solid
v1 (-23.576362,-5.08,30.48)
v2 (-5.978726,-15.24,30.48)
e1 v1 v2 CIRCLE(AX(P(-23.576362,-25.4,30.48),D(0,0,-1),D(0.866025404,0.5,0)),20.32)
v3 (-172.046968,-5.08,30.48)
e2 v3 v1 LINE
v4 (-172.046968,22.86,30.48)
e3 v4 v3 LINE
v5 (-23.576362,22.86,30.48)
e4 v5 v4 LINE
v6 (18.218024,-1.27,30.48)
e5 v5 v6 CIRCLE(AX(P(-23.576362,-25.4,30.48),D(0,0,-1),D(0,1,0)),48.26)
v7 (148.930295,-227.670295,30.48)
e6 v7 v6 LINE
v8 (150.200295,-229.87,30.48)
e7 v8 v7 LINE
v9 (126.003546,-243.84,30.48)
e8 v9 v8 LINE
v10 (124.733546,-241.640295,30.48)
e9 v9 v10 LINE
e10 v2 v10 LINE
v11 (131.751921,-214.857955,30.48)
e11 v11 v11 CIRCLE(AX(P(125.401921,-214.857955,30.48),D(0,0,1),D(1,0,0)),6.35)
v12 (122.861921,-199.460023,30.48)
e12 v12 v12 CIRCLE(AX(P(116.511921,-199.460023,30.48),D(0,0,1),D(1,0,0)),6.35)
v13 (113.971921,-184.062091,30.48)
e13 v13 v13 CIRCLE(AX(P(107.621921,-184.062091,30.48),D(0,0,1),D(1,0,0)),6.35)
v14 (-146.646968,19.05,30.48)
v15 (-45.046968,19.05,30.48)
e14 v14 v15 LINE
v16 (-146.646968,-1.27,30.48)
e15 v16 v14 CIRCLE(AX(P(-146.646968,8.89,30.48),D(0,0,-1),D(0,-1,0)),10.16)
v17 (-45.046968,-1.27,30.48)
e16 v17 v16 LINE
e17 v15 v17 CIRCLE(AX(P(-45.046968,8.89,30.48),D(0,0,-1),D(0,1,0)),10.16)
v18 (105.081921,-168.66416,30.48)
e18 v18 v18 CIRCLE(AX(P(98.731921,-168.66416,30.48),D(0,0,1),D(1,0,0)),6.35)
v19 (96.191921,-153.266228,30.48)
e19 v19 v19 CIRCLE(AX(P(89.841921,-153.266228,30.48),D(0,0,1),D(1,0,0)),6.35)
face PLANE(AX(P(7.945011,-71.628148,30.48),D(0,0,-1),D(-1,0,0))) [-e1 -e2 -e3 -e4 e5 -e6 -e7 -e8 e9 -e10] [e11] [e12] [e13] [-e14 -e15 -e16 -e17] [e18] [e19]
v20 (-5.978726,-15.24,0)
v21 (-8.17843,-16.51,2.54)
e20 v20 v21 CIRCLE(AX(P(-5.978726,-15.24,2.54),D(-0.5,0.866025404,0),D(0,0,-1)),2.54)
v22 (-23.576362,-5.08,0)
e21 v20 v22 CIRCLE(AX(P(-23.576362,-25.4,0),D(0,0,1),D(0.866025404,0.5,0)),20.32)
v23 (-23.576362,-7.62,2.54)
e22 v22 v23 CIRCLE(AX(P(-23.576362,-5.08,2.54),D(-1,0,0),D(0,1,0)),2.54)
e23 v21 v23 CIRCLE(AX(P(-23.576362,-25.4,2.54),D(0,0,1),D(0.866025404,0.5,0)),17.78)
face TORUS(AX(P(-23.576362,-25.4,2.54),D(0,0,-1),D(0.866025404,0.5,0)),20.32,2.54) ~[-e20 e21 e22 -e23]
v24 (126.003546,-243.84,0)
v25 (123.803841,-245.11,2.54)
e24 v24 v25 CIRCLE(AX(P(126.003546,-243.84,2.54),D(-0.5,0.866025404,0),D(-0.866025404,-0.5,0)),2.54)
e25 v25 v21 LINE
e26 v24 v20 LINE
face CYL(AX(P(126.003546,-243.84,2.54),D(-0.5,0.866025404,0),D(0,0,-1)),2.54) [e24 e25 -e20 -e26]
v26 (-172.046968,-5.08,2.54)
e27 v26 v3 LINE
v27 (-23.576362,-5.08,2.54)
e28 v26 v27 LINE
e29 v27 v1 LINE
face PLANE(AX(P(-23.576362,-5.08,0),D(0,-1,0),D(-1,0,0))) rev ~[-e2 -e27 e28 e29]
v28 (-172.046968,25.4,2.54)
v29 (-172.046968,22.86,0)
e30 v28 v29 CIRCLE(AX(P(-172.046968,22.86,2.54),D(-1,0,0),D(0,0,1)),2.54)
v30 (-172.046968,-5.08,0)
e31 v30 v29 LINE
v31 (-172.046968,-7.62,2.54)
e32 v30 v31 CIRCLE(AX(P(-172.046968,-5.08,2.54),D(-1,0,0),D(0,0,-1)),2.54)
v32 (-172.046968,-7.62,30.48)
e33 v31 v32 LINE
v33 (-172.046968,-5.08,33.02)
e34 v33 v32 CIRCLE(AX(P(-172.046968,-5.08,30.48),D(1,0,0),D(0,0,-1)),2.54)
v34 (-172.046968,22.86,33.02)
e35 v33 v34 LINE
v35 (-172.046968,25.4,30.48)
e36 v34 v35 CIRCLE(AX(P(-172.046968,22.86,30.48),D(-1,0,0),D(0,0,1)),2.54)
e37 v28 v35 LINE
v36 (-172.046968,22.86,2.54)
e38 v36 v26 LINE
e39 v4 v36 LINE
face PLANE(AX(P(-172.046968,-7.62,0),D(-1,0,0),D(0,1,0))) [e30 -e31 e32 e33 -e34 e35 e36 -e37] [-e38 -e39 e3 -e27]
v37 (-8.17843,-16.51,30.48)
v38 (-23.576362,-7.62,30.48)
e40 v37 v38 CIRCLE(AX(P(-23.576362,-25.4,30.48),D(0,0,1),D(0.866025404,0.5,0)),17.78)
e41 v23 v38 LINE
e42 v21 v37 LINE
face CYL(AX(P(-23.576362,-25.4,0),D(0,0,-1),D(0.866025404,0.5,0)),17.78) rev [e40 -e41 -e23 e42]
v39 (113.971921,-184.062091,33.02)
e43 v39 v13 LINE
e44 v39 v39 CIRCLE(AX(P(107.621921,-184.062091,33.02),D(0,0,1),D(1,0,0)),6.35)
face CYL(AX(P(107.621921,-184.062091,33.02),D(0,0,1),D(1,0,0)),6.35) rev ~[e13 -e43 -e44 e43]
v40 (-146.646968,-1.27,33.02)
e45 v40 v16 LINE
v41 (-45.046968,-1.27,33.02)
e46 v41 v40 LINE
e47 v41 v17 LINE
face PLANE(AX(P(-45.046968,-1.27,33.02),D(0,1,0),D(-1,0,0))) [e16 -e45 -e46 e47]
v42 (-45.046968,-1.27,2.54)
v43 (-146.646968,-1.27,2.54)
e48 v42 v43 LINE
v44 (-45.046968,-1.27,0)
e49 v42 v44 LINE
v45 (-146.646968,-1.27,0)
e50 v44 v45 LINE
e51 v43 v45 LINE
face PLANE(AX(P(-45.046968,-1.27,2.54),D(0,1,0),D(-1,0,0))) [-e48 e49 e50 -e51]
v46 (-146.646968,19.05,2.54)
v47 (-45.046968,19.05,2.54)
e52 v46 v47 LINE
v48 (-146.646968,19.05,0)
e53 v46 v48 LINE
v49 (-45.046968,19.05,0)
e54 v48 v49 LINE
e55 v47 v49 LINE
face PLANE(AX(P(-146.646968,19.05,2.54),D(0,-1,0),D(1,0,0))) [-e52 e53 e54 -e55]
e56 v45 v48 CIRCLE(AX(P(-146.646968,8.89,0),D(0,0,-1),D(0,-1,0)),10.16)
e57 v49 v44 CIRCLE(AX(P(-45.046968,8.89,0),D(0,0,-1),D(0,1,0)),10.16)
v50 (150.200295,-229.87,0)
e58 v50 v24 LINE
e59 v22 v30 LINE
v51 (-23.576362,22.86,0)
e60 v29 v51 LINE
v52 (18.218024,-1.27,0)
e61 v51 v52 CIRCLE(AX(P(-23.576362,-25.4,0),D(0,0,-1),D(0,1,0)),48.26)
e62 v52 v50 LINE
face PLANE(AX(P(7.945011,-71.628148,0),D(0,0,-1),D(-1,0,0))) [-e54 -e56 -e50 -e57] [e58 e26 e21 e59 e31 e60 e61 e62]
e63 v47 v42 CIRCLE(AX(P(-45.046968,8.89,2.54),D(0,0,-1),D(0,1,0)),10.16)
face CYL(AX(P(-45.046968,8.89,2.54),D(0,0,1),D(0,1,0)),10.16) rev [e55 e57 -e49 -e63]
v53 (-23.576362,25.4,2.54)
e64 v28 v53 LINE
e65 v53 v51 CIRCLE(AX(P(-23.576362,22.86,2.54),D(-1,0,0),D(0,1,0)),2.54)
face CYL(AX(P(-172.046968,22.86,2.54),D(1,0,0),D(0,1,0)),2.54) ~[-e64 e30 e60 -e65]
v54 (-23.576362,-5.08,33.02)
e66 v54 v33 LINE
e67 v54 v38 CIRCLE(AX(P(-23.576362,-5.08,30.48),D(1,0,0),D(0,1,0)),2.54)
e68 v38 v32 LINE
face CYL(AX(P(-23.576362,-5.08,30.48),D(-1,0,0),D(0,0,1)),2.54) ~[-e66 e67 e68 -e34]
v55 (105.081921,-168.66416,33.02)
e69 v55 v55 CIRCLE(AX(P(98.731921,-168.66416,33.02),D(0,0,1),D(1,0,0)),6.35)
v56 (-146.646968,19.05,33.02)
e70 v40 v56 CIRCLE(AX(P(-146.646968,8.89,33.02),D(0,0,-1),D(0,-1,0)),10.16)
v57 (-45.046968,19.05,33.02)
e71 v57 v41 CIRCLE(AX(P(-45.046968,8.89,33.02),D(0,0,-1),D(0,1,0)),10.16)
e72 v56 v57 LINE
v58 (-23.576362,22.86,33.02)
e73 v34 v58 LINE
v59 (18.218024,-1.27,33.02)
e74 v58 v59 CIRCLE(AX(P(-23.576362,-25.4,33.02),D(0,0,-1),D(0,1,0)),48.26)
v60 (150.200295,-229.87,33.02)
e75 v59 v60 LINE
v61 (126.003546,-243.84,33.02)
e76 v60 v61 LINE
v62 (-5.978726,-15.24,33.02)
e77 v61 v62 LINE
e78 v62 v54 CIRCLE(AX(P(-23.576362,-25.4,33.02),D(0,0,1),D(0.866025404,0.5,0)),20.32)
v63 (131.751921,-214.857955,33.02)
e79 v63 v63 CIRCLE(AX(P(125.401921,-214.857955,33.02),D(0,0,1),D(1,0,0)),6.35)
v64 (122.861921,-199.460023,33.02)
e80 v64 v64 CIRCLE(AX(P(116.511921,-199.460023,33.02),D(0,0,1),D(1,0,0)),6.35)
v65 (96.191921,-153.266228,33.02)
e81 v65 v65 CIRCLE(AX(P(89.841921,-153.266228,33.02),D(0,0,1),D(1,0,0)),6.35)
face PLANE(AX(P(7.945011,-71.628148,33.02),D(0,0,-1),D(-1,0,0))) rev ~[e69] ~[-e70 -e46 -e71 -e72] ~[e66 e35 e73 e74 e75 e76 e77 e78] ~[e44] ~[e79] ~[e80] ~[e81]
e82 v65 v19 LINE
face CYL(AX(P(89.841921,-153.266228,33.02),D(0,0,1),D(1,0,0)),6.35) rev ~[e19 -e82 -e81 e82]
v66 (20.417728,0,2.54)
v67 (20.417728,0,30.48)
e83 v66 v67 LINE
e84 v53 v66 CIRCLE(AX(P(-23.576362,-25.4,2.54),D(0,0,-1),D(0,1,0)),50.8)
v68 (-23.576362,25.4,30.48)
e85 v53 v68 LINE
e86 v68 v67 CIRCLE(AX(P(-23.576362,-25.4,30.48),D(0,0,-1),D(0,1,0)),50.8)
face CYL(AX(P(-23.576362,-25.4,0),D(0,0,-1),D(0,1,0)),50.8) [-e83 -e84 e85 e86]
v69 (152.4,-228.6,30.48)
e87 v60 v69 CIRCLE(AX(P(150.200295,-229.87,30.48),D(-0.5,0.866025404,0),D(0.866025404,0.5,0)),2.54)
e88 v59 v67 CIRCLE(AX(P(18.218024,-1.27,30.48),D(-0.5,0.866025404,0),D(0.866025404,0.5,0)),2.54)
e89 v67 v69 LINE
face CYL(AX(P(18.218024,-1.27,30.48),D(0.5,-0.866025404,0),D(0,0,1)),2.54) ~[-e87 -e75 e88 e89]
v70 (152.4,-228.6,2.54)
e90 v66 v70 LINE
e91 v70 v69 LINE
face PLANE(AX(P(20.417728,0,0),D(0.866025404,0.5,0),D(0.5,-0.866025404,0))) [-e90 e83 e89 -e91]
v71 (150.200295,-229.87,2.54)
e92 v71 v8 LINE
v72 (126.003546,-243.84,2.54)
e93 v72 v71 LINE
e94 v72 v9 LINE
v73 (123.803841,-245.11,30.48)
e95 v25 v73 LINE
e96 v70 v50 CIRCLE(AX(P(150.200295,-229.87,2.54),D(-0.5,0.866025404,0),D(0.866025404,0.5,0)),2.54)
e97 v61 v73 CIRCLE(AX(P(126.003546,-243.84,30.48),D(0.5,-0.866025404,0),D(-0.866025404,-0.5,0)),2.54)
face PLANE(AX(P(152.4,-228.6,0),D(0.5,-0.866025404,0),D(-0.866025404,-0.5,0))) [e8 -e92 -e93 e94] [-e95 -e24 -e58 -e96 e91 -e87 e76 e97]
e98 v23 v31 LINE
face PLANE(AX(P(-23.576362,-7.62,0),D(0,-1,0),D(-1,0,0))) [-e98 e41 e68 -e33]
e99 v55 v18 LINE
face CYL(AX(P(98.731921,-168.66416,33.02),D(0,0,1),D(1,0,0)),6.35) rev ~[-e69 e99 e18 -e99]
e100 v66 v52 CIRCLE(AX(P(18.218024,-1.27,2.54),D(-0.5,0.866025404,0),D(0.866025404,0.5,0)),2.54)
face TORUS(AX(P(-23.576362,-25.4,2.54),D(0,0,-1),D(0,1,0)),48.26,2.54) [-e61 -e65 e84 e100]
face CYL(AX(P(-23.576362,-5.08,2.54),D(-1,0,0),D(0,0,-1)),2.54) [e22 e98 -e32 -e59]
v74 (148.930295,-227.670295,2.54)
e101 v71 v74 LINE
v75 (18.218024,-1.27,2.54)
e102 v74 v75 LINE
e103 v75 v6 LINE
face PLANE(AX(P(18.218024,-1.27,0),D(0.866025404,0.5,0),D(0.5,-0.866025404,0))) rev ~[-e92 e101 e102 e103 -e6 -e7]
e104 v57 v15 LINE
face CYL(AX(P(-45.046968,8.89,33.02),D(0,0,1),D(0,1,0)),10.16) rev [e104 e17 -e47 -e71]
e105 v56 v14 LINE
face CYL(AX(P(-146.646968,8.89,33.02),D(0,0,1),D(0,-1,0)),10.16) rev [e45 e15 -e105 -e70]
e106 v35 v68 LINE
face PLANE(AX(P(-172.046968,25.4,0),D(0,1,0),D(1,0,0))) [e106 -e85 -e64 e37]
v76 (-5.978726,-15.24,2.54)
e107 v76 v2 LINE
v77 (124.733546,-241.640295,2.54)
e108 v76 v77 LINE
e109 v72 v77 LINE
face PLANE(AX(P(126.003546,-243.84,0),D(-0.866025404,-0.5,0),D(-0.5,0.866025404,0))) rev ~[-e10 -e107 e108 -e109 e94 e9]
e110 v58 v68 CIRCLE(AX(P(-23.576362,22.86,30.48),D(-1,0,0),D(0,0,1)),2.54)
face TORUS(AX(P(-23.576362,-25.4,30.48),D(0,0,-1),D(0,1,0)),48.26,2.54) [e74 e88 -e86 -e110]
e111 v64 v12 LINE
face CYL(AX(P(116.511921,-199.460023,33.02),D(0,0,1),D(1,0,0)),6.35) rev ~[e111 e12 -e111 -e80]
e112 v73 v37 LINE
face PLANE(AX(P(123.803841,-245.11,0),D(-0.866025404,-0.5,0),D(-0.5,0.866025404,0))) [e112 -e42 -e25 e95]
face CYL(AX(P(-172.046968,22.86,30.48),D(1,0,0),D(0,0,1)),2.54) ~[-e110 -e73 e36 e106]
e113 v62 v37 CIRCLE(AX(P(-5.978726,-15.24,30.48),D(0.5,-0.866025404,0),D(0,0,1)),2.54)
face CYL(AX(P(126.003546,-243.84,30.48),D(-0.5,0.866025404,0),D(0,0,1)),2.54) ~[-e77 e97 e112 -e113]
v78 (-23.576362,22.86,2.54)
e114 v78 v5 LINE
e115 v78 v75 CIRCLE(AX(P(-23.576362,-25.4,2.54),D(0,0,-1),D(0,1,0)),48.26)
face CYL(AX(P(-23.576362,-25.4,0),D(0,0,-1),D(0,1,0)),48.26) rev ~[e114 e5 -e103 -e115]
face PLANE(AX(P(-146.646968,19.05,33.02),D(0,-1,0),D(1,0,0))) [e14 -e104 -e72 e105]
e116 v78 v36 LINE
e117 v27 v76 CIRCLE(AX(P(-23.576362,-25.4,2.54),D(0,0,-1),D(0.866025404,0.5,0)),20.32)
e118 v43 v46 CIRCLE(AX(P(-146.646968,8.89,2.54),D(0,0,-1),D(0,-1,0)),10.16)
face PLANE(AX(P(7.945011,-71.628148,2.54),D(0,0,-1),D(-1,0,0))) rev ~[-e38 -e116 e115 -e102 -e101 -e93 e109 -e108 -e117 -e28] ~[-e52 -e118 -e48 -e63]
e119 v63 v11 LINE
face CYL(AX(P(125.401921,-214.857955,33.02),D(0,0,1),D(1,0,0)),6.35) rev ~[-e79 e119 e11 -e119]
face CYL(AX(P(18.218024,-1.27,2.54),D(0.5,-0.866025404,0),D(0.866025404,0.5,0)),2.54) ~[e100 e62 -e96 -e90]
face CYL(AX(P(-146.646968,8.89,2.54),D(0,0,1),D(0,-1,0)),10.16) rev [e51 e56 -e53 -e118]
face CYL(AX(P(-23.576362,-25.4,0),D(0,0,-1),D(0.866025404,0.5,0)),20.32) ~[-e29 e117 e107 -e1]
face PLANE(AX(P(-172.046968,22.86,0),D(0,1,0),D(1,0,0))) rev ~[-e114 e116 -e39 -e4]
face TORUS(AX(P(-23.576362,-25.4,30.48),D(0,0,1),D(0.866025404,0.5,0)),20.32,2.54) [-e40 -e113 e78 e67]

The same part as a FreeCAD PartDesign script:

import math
import FreeCAD as App
import Part
import Sketcher
Q = App.Units.Quantity


def edges_at(feature, points):
    """Names of the edges that pass closest to the given points."""
    edges = feature.Shape.Edges
    near = lambda p: min(range(len(edges)), key=lambda i: edges[i].distToShape(Part.Vertex(*p))[0])
    return sorted({f"Edge{near(p) + 1}" for p in points})


def faces_at(feature, points):
    """Names of the faces that lie closest to the given points."""
    faces = feature.Shape.Faces
    near = lambda p: min(range(len(faces)), key=lambda i: faces[i].distToShape(Part.Vertex(*p))[0])
    return sorted({f"Face{near(p) + 1}" for p in points})

doc = App.newDocument("Part")
body = doc.addObject("PartDesign::Body", "Body")

# Sketch on XY plane
sketch1 = body.newObject("Sketcher::SketchObject", "Sketch")
sketch1.AttachmentSupport = (doc.getObject("XY_Plane"), [""])
sketch1.MapMode = "FlatFace"
sketch1.addGeometry([
    Part.LineSegment(App.Vector(-23.576362, 25.4, 0), App.Vector(-172.046968, 25.4, 0)),  # 0
    Part.LineSegment(App.Vector(-172.046968, 25.4, 0), App.Vector(-172.046968, -7.62, 0)),  # 1
    Part.LineSegment(App.Vector(-172.046968, -7.62, 0), App.Vector(-23.576362, -7.62, 0)),  # 2
    Part.ArcOfCircle(Part.Circle(App.Vector(-23.576362, -25.4, 0), App.Vector(0, 0, 1), 17.78), math.radians(30), math.radians(90)),  # 3
    Part.LineSegment(App.Vector(-8.17843, -16.51, 0), App.Vector(123.803841, -245.11, 0)),  # 4
    Part.LineSegment(App.Vector(123.803841, -245.11, 0), App.Vector(152.4, -228.6, 0)),  # 5
    Part.LineSegment(App.Vector(152.4, -228.6, 0), App.Vector(20.417728, 0, 0)),  # 6
    Part.ArcOfCircle(Part.Circle(App.Vector(-23.576362, -25.4, 0), App.Vector(0, 0, 1), 50.8), math.radians(30), math.radians(90)),  # 7
], False)
sketch1.addConstraint([
    Sketcher.Constraint("Coincident", 0, 2, 1, 1),
    Sketcher.Constraint("Coincident", 1, 2, 2, 1),
    Sketcher.Constraint("Tangent", 2, 2, 3, 2),
    Sketcher.Constraint("Tangent", 3, 1, 4, 1),
    Sketcher.Constraint("Coincident", 4, 2, 5, 1),
    Sketcher.Constraint("Coincident", 5, 2, 6, 1),
    Sketcher.Constraint("Tangent", 6, 2, 7, 1),
    Sketcher.Constraint("Tangent", 7, 2, 0, 1),
    Sketcher.Constraint("Horizontal", 0),
    Sketcher.Constraint("Vertical", 1),
    Sketcher.Constraint("Horizontal", 2),
    Sketcher.Constraint("Coincident", 7, 3, 3, 3),
    Sketcher.Constraint("PointOnObject", 6, 2, -1),
    Sketcher.Constraint("Perpendicular", 4, 5),
    Sketcher.Constraint("Perpendicular", 5, 6),
    Sketcher.Constraint("Radius", 7, Q("2 in")),
    Sketcher.Constraint("Radius", 3, Q("0.7 in")),
    Sketcher.Constraint("DistanceY", 3, 3, -1, 1, Q("1 in")),
    Sketcher.Constraint("DistanceX", -1, 1, 5, 2, Q("6 in")),
    Sketcher.Constraint("DistanceY", 5, 2, -1, 1, Q("9 in")),
    Sketcher.Constraint("DistanceX", 0, 2, 0, 1, Q("148.470606 mm")),
])
pad1 = body.newObject("PartDesign::Pad", "Pad")
pad1.Profile = sketch1
pad1.Length = Q("1.3 in")
doc.recompute()

thickness = body.newObject("PartDesign::Thickness", "Thickness")
thickness.Base = (pad1, faces_at(pad1, [(-172.047, 8.89, 16.51)]))
thickness.Value = Q("0.1 in")
thickness.Reversed = True
thickness.Join = "Intersection"

# Sketch on an angled plane
sketch2 = body.newObject("Sketcher::SketchObject", "Sketch001")
sketch2.Placement = App.Placement(App.Vector(137.086704, -237.441136, 0), App.Rotation(App.Vector(0.866025404, 0.5, 0), App.Vector(0, 0, 1), App.Vector(0.5, -0.866025404, 0), "ZXY"))
sketch2.addGeometry([
    Part.LineSegment(App.Vector(-12.797728, 30.48, 0), App.Vector(-12.797728, 2.54, 0)),
    Part.LineSegment(App.Vector(-12.797728, 2.54, 0), App.Vector(15.142272, 2.54, 0)),
    Part.LineSegment(App.Vector(15.142272, 2.54, 0), App.Vector(15.142272, 30.48, 0)),
    Part.LineSegment(App.Vector(15.142272, 30.48, 0), App.Vector(-12.797728, 30.48, 0)),
], False)
sketch2.addConstraint([
    Sketcher.Constraint("Coincident", 0, 2, 1, 1),
    Sketcher.Constraint("Coincident", 1, 2, 2, 1),
    Sketcher.Constraint("Coincident", 2, 2, 3, 1),
    Sketcher.Constraint("Coincident", 3, 2, 0, 1),
    Sketcher.Constraint("Vertical", 0),
    Sketcher.Constraint("Horizontal", 1),
    Sketcher.Constraint("Vertical", 2),
    Sketcher.Constraint("Horizontal", 3),
    Sketcher.Constraint("Equal", 3, 0),
    Sketcher.Constraint("DistanceX", 1, 1, 1, 2, Q("1.1 in")),
    Sketcher.Constraint("DistanceY", -1, 1, 0, 2, Q("0.1 in")),
    Sketcher.Constraint("DistanceX", 0, 2, -1, 1, Q("12.797728 mm")),
])
pocket1 = body.newObject("PartDesign::Pocket", "Pocket")
pocket1.Profile = sketch2
pocket1.Type = "UpToFirst"

# Sketch on XY plane
sketch3 = body.newObject("Sketcher::SketchObject", "Sketch002")
sketch3.AttachmentSupport = (doc.getObject("XY_Plane"), [""])
sketch3.MapMode = "FlatFace"
sketch3.AttachmentOffset = App.Placement(App.Vector(0, 0, 1.3 * 25.4), App.Rotation())
sketch3.addGeometry([
    Part.LineSegment(App.Vector(-45.046968, 19.05, 0), App.Vector(-146.646968, 19.05, 0)),
    Part.ArcOfCircle(Part.Circle(App.Vector(-146.646968, 8.89, 0), App.Vector(0, 0, 1), 10.16), math.radians(90), math.radians(270)),
    Part.LineSegment(App.Vector(-146.646968, -1.27, 0), App.Vector(-45.046968, -1.27, 0)),
    Part.ArcOfCircle(Part.Circle(App.Vector(-45.046968, 8.89, 0), App.Vector(0, 0, 1), 10.16), math.radians(-90), math.radians(90)),
], False)
sketch3.addConstraint([
    Sketcher.Constraint("Tangent", 0, 2, 1, 1),
    Sketcher.Constraint("Tangent", 1, 2, 2, 1),
    Sketcher.Constraint("Tangent", 2, 2, 3, 1),
    Sketcher.Constraint("Tangent", 3, 2, 0, 1),
    Sketcher.Constraint("Horizontal", 0),
    Sketcher.Constraint("Horizontal", 2),
    Sketcher.Constraint("Radius", 1, Q("0.4 in")),
    Sketcher.Constraint("DistanceX", 0, 2, 0, 1, Q("4 in")),
    Sketcher.Constraint("DistanceY", -1, 1, 1, 3, Q("0.35 in")),
    Sketcher.Constraint("DistanceX", 1, 3, -1, 1, Q("146.646968 mm")),
])
pocket2 = body.newObject("PartDesign::Pocket", "Pocket001")
pocket2.Profile = sketch3
pocket2.Length = Q("0.1 in")

# Sketch on XY plane
sketch4 = body.newObject("Sketcher::SketchObject", "Sketch003")
sketch4.AttachmentSupport = (doc.getObject("XY_Plane"), [""])
sketch4.MapMode = "FlatFace"
sketch4.AttachmentOffset = App.Placement(App.Vector(0, 0, 0.1 * 25.4), App.Rotation())
sketch4.addGeometry([
    Part.ArcOfCircle(Part.Circle(App.Vector(-146.646968, 8.89, 0), App.Vector(0, 0, 1), 10.16), math.radians(90), math.radians(270)),
    Part.LineSegment(App.Vector(-146.646968, 19.05, 0), App.Vector(-45.046968, 19.05, 0)),
    Part.ArcOfCircle(Part.Circle(App.Vector(-45.046968, 8.89, 0), App.Vector(0, 0, 1), 10.16), math.radians(-90), math.radians(90)),
    Part.LineSegment(App.Vector(-45.046968, -1.27, 0), App.Vector(-146.646968, -1.27, 0)),
], False)
sketch4.addConstraint([
    Sketcher.Constraint("Tangent", 0, 1, 1, 1),
    Sketcher.Constraint("Tangent", 1, 2, 2, 2),
    Sketcher.Constraint("Tangent", 2, 1, 3, 1),
    Sketcher.Constraint("Tangent", 3, 2, 0, 2),
    Sketcher.Constraint("Horizontal", 1),
    Sketcher.Constraint("Horizontal", 3),
    Sketcher.Constraint("Radius", 0, Q("0.4 in")),
    Sketcher.Constraint("DistanceX", 1, 1, 1, 2, Q("4 in")),
    Sketcher.Constraint("DistanceY", -1, 1, 0, 3, Q("0.35 in")),
    Sketcher.Constraint("DistanceX", 0, 3, -1, 1, Q("146.646968 mm")),
])
pocket3 = body.newObject("PartDesign::Pocket", "Pocket002")
pocket3.Profile = sketch4
pocket3.Length = Q("0.1 in")

# Sketch on XY plane
sketch5 = body.newObject("Sketcher::SketchObject", "Sketch004")
sketch5.AttachmentSupport = (doc.getObject("XY_Plane"), [""])
sketch5.MapMode = "FlatFace"
sketch5.AttachmentOffset = App.Placement(App.Vector(0, 0, 1.3 * 25.4), App.Rotation())
sketch5.addGeometry(Part.Circle(App.Vector(125.401921, -214.857955, 0), App.Vector(0, 0, 1), 6.35), False)
sketch5.addConstraint([
    Sketcher.Constraint("Diameter", 0, Q("0.5 in")),
    Sketcher.Constraint("DistanceX", -1, 1, 0, 3, Q("125.401921 mm")),
    Sketcher.Constraint("DistanceY", 0, 3, -1, 1, Q("214.857955 mm")),
])
pocket4 = body.newObject("PartDesign::Pocket", "Pocket003")
pocket4.Profile = sketch5
pocket4.Type = "UpToFirst"

# Sketch on XY plane
sketch6 = body.newObject("Sketcher::SketchObject", "Sketch005")
sketch6.AttachmentSupport = (doc.getObject("XY_Plane"), [""])
sketch6.MapMode = "FlatFace"
sketch6.AttachmentOffset = App.Placement(App.Vector(0, 0, 1.3 * 25.4), App.Rotation())
sketch6.addGeometry(Part.Circle(App.Vector(116.511921, -199.460023, 0), App.Vector(0, 0, 1), 6.35), False)
sketch6.addConstraint([
    Sketcher.Constraint("Diameter", 0, Q("0.5 in")),
    Sketcher.Constraint("DistanceX", -1, 1, 0, 3, Q("116.511921 mm")),
    Sketcher.Constraint("DistanceY", 0, 3, -1, 1, Q("199.460023 mm")),
])
pocket5 = body.newObject("PartDesign::Pocket", "Pocket004")
pocket5.Profile = sketch6
pocket5.Type = "UpToFirst"

# Sketch on XY plane
sketch7 = body.newObject("Sketcher::SketchObject", "Sketch006")
sketch7.AttachmentSupport = (doc.getObject("XY_Plane"), [""])
sketch7.MapMode = "FlatFace"
sketch7.AttachmentOffset = App.Placement(App.Vector(0, 0, 1.3 * 25.4), App.Rotation())
sketch7.addGeometry(Part.Circle(App.Vector(107.621921, -184.062091, 0), App.Vector(0, 0, 1), 6.35), False)
sketch7.addConstraint([
    Sketcher.Constraint("Diameter", 0, Q("0.5 in")),
    Sketcher.Constraint("DistanceX", -1, 1, 0, 3, Q("107.621921 mm")),
    Sketcher.Constraint("DistanceY", 0, 3, -1, 1, Q("184.062091 mm")),
])
pocket6 = body.newObject("PartDesign::Pocket", "Pocket005")
pocket6.Profile = sketch7
pocket6.Type = "UpToFirst"

# Sketch on XY plane
sketch8 = body.newObject("Sketcher::SketchObject", "Sketch007")
sketch8.AttachmentSupport = (doc.getObject("XY_Plane"), [""])
sketch8.MapMode = "FlatFace"
sketch8.AttachmentOffset = App.Placement(App.Vector(0, 0, 1.3 * 25.4), App.Rotation())
sketch8.addGeometry(Part.Circle(App.Vector(98.731921, -168.66416, 0), App.Vector(0, 0, 1), 6.35), False)
sketch8.addConstraint([
    Sketcher.Constraint("Diameter", 0, Q("0.5 in")),
    Sketcher.Constraint("DistanceX", -1, 1, 0, 3, Q("98.731921 mm")),
    Sketcher.Constraint("DistanceY", 0, 3, -1, 1, Q("168.66416 mm")),
])
pocket7 = body.newObject("PartDesign::Pocket", "Pocket006")
pocket7.Profile = sketch8
pocket7.Type = "UpToFirst"

# Sketch on XY plane
sketch9 = body.newObject("Sketcher::SketchObject", "Sketch008")
sketch9.AttachmentSupport = (doc.getObject("XY_Plane"), [""])
sketch9.MapMode = "FlatFace"
sketch9.AttachmentOffset = App.Placement(App.Vector(0, 0, 1.3 * 25.4), App.Rotation())
sketch9.addGeometry(Part.Circle(App.Vector(89.841921, -153.266228, 0), App.Vector(0, 0, 1), 6.35), False)
sketch9.addConstraint([
    Sketcher.Constraint("Diameter", 0, Q("0.5 in")),
    Sketcher.Constraint("DistanceX", -1, 1, 0, 3, Q("89.841921 mm")),
    Sketcher.Constraint("DistanceY", 0, 3, -1, 1, Q("153.266228 mm")),
])
pocket8 = body.newObject("PartDesign::Pocket", "Pocket007")
pocket8.Profile = sketch9
pocket8.Type = "UpToFirst"
doc.recompute()

fillet = body.newObject("PartDesign::Fillet", "Fillet")
fillet.Base = (pocket8, edges_at(pocket8, [
    (57.813, -130.81, 0),
    (-14.686, -10.002, 0),
    (-97.812, -7.62, 0),
    (-14.686, -10.002, 33.02),
    (57.813, -130.81, 33.02),
    (86.409, -114.3, 33.02),
    (1.824, 18.594, 33.02),
    (-97.812, 25.4, 33.02),
    (-97.812, 25.4, 0),
    (-97.812, -7.62, 33.02),
    (1.824, 18.594, 0),
    (86.409, -114.3, 0),
]))
fillet.Radius = Q("0.1 in")

doc.recompute()
